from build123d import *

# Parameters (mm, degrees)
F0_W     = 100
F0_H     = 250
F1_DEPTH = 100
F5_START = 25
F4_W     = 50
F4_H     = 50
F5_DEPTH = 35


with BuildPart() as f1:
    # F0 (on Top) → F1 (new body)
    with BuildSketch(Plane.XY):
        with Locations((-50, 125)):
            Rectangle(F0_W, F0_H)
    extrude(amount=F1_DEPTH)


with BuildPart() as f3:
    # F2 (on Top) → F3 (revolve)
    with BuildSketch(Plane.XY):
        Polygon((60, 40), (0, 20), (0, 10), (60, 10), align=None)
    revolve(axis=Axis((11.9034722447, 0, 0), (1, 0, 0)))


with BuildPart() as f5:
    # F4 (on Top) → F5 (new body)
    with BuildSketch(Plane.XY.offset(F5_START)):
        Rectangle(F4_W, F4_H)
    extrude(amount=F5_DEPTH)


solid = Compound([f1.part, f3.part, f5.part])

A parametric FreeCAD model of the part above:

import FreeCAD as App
import Part
import Sketcher
from FreeCAD import Vector
Q = App.Units.Quantity

doc = App.newDocument("Part")
body = doc.addObject("PartDesign::Body", "Body")

# Sketch on XY plane
sketch1 = body.newObject("Sketcher::SketchObject", "Sketch")
sketch1.AttachmentSupport = (doc.getObject("XY_Plane"), [""])
sketch1.MapMode = "FlatFace"
sketch1.addGeometry([
    Part.LineSegment(Vector(-100, 250, 0), Vector(-100, 0, 0)),
    Part.LineSegment(Vector(-100, 0, 0), Vector(0, 0, 0)),
    Part.LineSegment(Vector(0, 0, 0), Vector(0, 250, 0)),
    Part.LineSegment(Vector(0, 250, 0), Vector(-100, 250, 0)),
], False)
sketch1.addConstraint([
    Sketcher.Constraint("Coincident", 0, 2, 1, 1),
    Sketcher.Constraint("Coincident", 1, 2, 2, 1),
    Sketcher.Constraint("Coincident", 2, 2, 3, 1),
    Sketcher.Constraint("Coincident", 3, 2, 0, 1),
    Sketcher.Constraint("Vertical", 0),
    Sketcher.Constraint("Horizontal", 1),
    Sketcher.Constraint("Vertical", 2),
    Sketcher.Constraint("Horizontal", 3),
    Sketcher.Constraint("Coincident", 1, 2, -1, 1),
    Sketcher.Constraint("DistanceX", 1, 1, 1, 2, Q("100 mm")),
    Sketcher.Constraint("DistanceY", 0, 2, 0, 1, Q("250 mm")),
])
pad1 = body.newObject("PartDesign::Pad", "Pad")
pad1.Profile = sketch1
pad1.Length = 100
body2 = doc.addObject("PartDesign::Body", "Body001")

# Sketch on XY plane
sketch2 = body2.newObject("Sketcher::SketchObject", "Sketch001")
sketch2.AttachmentSupport = (doc.getObject("XY_Plane001"), [""])
sketch2.MapMode = "FlatFace"
sketch2.addGeometry([
    Part.LineSegment(Vector(60, 40, 0), Vector(0, 20, 0)),
    Part.LineSegment(Vector(0, 20, 0), Vector(0, 10, 0)),
    Part.LineSegment(Vector(0, 10, 0), Vector(60, 10, 0)),
    Part.LineSegment(Vector(60, 10, 0), Vector(60, 40, 0)),
], False)
sketch2.addConstraint([
    Sketcher.Constraint("Coincident", 0, 2, 1, 1),
    Sketcher.Constraint("Coincident", 1, 2, 2, 1),
    Sketcher.Constraint("Coincident", 2, 2, 3, 1),
    Sketcher.Constraint("Coincident", 3, 2, 0, 1),
    Sketcher.Constraint("Vertical", 1),
    Sketcher.Constraint("Horizontal", 2),
    Sketcher.Constraint("Vertical", 3),
    Sketcher.Constraint("PointOnObject", 0, 2, -2),
    Sketcher.Constraint("DistanceX", 2, 1, 2, 2, Q("60 mm")),
    Sketcher.Constraint("DistanceY", 1, 2, 1, 1, Q("10 mm")),
    Sketcher.Constraint("DistanceY", 3, 1, 3, 2, Q("30 mm")),
    Sketcher.Constraint("DistanceY", -1, 1, 0, 2, Q("20 mm")),
])
revolution = body2.newObject("PartDesign::Revolution", "Revolution")
revolution.Profile = sketch2
revolution.ReferenceAxis = (sketch2, ["H_Axis"])
revolution.Angle = 360
body3 = doc.addObject("PartDesign::Body", "Body002")

# Sketch on XY plane
sketch3 = body3.newObject("Sketcher::SketchObject", "Sketch002")
sketch3.AttachmentSupport = (doc.getObject("XY_Plane002"), [""])
sketch3.MapMode = "FlatFace"
sketch3.AttachmentOffset = App.Placement(Vector(0, 0, 25), App.Rotation())
sketch3.addGeometry([
    Part.LineSegment(Vector(-25, 25, 0), Vector(-25, -25, 0)),
    Part.LineSegment(Vector(-25, -25, 0), Vector(25, -25, 0)),
    Part.LineSegment(Vector(25, -25, 0), Vector(25, 25, 0)),
    Part.LineSegment(Vector(25, 25, 0), Vector(-25, 25, 0)),
], False)
sketch3.addConstraint([
    Sketcher.Constraint("Coincident", 0, 2, 1, 1),
    Sketcher.Constraint("Coincident", 1, 2, 2, 1),
    Sketcher.Constraint("Coincident", 2, 2, 3, 1),
    Sketcher.Constraint("Coincident", 3, 2, 0, 1),
    Sketcher.Constraint("Vertical", 0),
    Sketcher.Constraint("Horizontal", 1),
    Sketcher.Constraint("Vertical", 2),
    Sketcher.Constraint("Horizontal", 3),
    Sketcher.Constraint("Symmetric", 0, 2, 2, 2, -1, 1),
    Sketcher.Constraint("Equal", 3, 0),
    Sketcher.Constraint("DistanceX", 1, 1, 1, 2, Q("50 mm")),
])
pad2 = body3.newObject("PartDesign::Pad", "Pad001")
pad2.Profile = sketch3
pad2.Length = 35

doc.recompute()
